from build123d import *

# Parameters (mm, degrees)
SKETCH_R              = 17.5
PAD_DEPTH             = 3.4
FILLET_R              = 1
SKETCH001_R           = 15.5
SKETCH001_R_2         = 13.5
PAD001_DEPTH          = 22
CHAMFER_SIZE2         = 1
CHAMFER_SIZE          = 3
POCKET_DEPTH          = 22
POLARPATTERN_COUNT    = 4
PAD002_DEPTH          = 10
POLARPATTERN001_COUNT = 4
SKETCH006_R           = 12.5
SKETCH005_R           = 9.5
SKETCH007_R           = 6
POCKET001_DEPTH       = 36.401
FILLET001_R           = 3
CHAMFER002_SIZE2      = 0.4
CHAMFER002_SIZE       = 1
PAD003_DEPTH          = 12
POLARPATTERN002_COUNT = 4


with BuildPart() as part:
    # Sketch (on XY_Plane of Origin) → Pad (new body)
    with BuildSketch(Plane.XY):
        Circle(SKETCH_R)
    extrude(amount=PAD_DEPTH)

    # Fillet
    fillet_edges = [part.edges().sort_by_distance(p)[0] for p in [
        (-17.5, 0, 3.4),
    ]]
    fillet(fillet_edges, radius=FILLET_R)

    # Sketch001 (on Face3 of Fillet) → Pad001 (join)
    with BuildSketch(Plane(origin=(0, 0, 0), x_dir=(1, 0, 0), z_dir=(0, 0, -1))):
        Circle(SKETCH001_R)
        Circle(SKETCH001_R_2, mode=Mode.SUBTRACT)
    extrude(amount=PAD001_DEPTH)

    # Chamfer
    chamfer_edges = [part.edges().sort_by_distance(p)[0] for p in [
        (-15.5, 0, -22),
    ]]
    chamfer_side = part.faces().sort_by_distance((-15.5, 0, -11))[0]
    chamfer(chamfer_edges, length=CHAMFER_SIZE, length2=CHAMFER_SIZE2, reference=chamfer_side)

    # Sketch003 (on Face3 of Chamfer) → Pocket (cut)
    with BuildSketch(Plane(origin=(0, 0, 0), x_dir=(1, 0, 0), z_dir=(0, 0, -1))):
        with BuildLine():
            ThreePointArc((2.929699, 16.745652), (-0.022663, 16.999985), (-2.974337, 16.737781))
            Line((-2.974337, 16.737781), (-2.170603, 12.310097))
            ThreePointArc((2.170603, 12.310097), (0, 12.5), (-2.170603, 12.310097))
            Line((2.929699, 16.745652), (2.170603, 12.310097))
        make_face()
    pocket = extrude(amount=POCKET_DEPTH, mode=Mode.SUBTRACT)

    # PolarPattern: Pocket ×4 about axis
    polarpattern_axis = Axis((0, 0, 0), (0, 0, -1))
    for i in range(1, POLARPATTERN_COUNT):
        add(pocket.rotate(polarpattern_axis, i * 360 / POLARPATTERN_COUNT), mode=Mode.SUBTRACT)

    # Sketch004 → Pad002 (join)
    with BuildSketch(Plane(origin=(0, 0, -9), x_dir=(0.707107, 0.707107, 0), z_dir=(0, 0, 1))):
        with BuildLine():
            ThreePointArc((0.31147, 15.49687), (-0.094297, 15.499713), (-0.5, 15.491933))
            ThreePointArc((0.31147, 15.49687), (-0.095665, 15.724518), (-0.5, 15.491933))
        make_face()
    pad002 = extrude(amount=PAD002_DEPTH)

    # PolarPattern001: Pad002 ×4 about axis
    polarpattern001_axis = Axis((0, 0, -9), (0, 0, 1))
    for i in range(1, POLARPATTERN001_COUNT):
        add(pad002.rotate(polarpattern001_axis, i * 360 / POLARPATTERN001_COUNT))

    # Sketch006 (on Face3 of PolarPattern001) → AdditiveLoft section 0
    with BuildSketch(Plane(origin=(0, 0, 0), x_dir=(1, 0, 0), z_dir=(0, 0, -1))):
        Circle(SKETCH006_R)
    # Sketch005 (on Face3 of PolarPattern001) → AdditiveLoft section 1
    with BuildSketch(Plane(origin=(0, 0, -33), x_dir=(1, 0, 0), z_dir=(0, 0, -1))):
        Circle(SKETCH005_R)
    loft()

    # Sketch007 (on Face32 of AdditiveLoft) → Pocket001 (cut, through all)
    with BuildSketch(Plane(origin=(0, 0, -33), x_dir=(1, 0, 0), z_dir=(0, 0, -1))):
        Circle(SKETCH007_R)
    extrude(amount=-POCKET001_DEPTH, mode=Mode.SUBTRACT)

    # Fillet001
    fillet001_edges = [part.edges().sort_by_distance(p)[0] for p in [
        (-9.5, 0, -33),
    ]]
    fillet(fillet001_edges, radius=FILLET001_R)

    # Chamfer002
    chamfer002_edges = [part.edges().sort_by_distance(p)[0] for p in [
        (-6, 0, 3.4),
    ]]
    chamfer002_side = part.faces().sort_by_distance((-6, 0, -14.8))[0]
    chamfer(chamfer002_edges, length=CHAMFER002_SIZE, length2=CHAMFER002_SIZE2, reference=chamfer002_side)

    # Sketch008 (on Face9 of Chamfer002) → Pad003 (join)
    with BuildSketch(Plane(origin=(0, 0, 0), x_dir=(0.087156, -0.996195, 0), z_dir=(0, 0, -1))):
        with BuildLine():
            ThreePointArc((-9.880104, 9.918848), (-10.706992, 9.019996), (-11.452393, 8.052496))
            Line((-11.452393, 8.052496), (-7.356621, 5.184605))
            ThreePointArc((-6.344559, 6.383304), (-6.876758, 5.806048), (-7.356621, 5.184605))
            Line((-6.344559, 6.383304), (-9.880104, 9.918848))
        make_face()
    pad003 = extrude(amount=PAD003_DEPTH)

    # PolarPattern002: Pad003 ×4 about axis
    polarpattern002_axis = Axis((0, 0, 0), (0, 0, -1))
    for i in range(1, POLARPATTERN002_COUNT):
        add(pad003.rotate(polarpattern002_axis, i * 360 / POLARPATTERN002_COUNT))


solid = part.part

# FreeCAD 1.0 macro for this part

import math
import FreeCAD as App
import Part
import Sketcher
from FreeCAD import Vector
Q = App.Units.Quantity


def edges_at(feature, points):
    """Names of the edges that pass closest to the given points."""
    edges = feature.Shape.Edges
    near = lambda p: min(range(len(edges)), key=lambda i: edges[i].distToShape(Part.Vertex(*p))[0])
    return sorted({f"Edge{near(p) + 1}" for p in points})

doc = App.newDocument("Part")
params = doc.addObject("Spreadsheet::Sheet", "Params")
for row, (alias, value) in enumerate([
    ("sketch1_diameter", "35 mm"),
    ("pad1_length", "3.4 mm"),
    ("fillet_radius", "1 mm"),
    ("sketch2_diameter", "31 mm"),
    ("sketch2_diameter2", "27 mm"),
    ("pad2_length", "22 mm"),
    ("chamfer_size", "3 mm"),
    ("chamfer_size2", "1 mm"),
    ("pocket1_length", "22 mm"),
    ("pad3_length", "10 mm"),
    ("sketch5_diameter", "25 mm"),
    ("sketch6_diameter", "19 mm"),
    ("sketch7_diameter", "12 mm"),
    ("fillet2_radius", "3 mm"),
    ("chamfer2_size", "1 mm"),
    ("chamfer2_size2", "0.4 mm"),
    ("pad4_length", "12 mm"),
], start=1):
    params.set(f"A{row}", alias)
    params.set(f"B{row}", "=" + value)
    params.setAlias(f"B{row}", alias)

body = doc.addObject("PartDesign::Body", "Body")

# Sketch on XY plane
sketch1 = body.newObject("Sketcher::SketchObject", "Sketch")
sketch1.AttachmentSupport = (doc.getObject("XY_Plane"), [""])
sketch1.MapMode = "FlatFace"
sketch1.addGeometry(Part.Circle(Vector(0, 0, 0), Vector(0, 0, 1), 17.5), False)
sketch1.addConstraint(Sketcher.Constraint("Coincident", 0, 3, -1, 1))
sketch1.addConstraint(Sketcher.Constraint("Diameter", 0, Q("35 mm")))
sketch1.setExpression("Constraints[1]", "Params.sketch1_diameter")
pad1 = body.newObject("PartDesign::Pad", "Pad")
pad1.Profile = sketch1
pad1.setExpression("Length", "Params.pad1_length")
doc.recompute()

fillet = body.newObject("PartDesign::Fillet", "Fillet")
fillet.Base = (pad1, edges_at(pad1, [(-17.5, 0, 3.4)]))
fillet.setExpression("Radius", "Params.fillet_radius")

# Sketch on XY plane
sketch2 = body.newObject("Sketcher::SketchObject", "Sketch001")
sketch2.AttachmentSupport = (doc.getObject("XY_Plane"), [""])
sketch2.MapMode = "FlatFace"
sketch2.addGeometry(Part.Circle(Vector(0, 0, 0), Vector(0, 0, 1), 15.5), False)
sketch2.addGeometry(Part.Circle(Vector(0, 0, 0), Vector(0, 0, 1), 13.5), False)
sketch2.addConstraint(Sketcher.Constraint("Coincident", 0, 3, -1, 1))
sketch2.addConstraint(Sketcher.Constraint("Coincident", 1, 3, -1, 1))
sketch2.addConstraint(Sketcher.Constraint("Diameter", 0, Q("31 mm")))
sketch2.addConstraint(Sketcher.Constraint("Diameter", 1, Q("27 mm")))
sketch2.setExpression("Constraints[2]", "Params.sketch2_diameter")
sketch2.setExpression("Constraints[3]", "Params.sketch2_diameter2")
pad2 = body.newObject("PartDesign::Pad", "Pad001")
pad2.Profile = sketch2
pad2.setExpression("Length", "Params.pad2_length")
pad2.Reversed = True
doc.recompute()

chamfer = body.newObject("PartDesign::Chamfer", "Chamfer")
chamfer.Base = (pad2, edges_at(pad2, [(-15.5, 0, -22)]))
chamfer.ChamferType = "Two distances"
chamfer.setExpression("Size", "Params.chamfer_size")
chamfer.setExpression("Size2", "Params.chamfer_size2")

# Sketch on XY plane
sketch3 = body.newObject("Sketcher::SketchObject", "Sketch002")
sketch3.AttachmentSupport = (doc.getObject("XY_Plane"), [""])
sketch3.MapMode = "FlatFace"
sketch3.addGeometry(Part.ArcOfCircle(Part.Circle(Vector(0, -0.000016, 0), Vector(0, 0, 1), 16.999984), math.radians(-100.076399), math.radians(-80.076369)), False)
sketch3.addGeometry(Part.LineSegment(Vector(-2.974337, -16.737781, 0), Vector(-2.170603, -12.310097, 0)), False)
sketch3.addGeometry(Part.ArcOfCircle(Part.Circle(Vector(0, 0.000015, 0), Vector(0, 0, 1), 12.500015), math.radians(-99.999992), math.radians(-80.000008)), False)
sketch3.addGeometry(Part.LineSegment(Vector(2.170603, -12.310097, 0), Vector(2.929699, -16.745652, 0)), False)
sketch3.addConstraint(Sketcher.Constraint("Coincident", 0, 1, 1, 1))
sketch3.addConstraint(Sketcher.Constraint("Coincident", 1, 2, 2, 1))
sketch3.addConstraint(Sketcher.Constraint("Coincident", 2, 2, 3, 1))
sketch3.addConstraint(Sketcher.Constraint("Coincident", 3, 2, 0, 2))
sketch3.addConstraint(Sketcher.Constraint("Symmetric", 0, 3, 2, 3, -1, 1))
sketch3.addConstraint(Sketcher.Constraint("Symmetric", 1, 2, 2, 2, -2))
sketch3.addConstraint(Sketcher.Constraint("Equal", 1, 3))
sketch3.addConstraint(Sketcher.Constraint("Radius", 0, Q("16.999984 mm")))
sketch3.addConstraint(Sketcher.Constraint("Radius", 2, Q("12.500015 mm")))
sketch3.addConstraint(Sketcher.Constraint("DistanceX", -1, 1, 3, 2, Q("2.929699 mm")))
sketch3.addConstraint(Sketcher.Constraint("DistanceX", 1, 2, 3, 2, Q("5.100302 mm")))
sketch3.addConstraint(Sketcher.Constraint("Distance", 1, Q("4.500042 mm")))
pocket1 = body.newObject("PartDesign::Pocket", "Pocket")
pocket1.Profile = sketch3
pocket1.setExpression("Length", "Params.pocket1_length")
doc.recompute()

polarpattern = body.newObject("PartDesign::PolarPattern", "PolarPattern")
polarpattern.Originals = [pocket1]
polarpattern.Axis = (doc.getObject("Z_Axis"), [""])
polarpattern.Angle = 360
polarpattern.Occurrences = 4
body.Tip = polarpattern

# Sketch on XY plane
sketch4 = body.newObject("Sketcher::SketchObject", "Sketch003")
sketch4.AttachmentSupport = (doc.getObject("XY_Plane"), [""])
sketch4.MapMode = "FlatFace"
sketch4.AttachmentOffset = App.Placement(Vector(0, 0, -9), App.Rotation())
sketch4.addGeometry(Part.ArcOfCircle(Part.Circle(Vector(-0.000285, 0.000286, 0), Vector(0, 0, 1), 15.499596), math.radians(133.848546), math.radians(136.848623)), False)
sketch4.addGeometry(Part.ArcOfCircle(Part.Circle(Vector(-10.850241, 10.719018, 0), Vector(0, 0, 1), 0.472757), math.radians(76.228273), math.radians(194.468896)), False)
sketch4.addConstraint(Sketcher.Constraint("Coincident", 0, 1, 1, 1))
sketch4.addConstraint(Sketcher.Constraint("Coincident", 1, 2, 0, 2))
sketch4.addConstraint(Sketcher.Constraint("Radius", 0, Q("15.499596 mm")))
sketch4.addConstraint(Sketcher.Constraint("Radius", 1, Q("0.472757 mm")))
sketch4.addConstraint(Sketcher.Constraint("DistanceX", 0, 1, -1, 1, Q("10.737699 mm")))
sketch4.addConstraint(Sketcher.Constraint("DistanceY", 0, 3, 0, 1, Q("11.177898 mm")))
sketch4.addConstraint(Sketcher.Constraint("DistanceX", 1, 3, -1, 1, Q("10.850241 mm")))
sketch4.addConstraint(Sketcher.Constraint("DistanceY", -1, 1, 0, 3, Q("0.000286 mm")))
pad3 = body.newObject("PartDesign::Pad", "Pad002")
pad3.Profile = sketch4
pad3.setExpression("Length", "Params.pad3_length")
doc.recompute()

polarpattern2 = body.newObject("PartDesign::PolarPattern", "PolarPattern001")
polarpattern2.Originals = [pad3]
polarpattern2.Axis = (doc.getObject("Z_Axis"), [""])
polarpattern2.Angle = 360
polarpattern2.Occurrences = 4
body.Tip = polarpattern2

# Sketch on XY plane
sketch5 = body.newObject("Sketcher::SketchObject", "Sketch004")
sketch5.AttachmentSupport = (doc.getObject("XY_Plane"), [""])
sketch5.MapMode = "FlatFace"
sketch5.addGeometry(Part.Circle(Vector(0, 0, 0), Vector(0, 0, 1), 12.5), False)
sketch5.addConstraint(Sketcher.Constraint("Coincident", 0, 3, -1, 1))
sketch5.addConstraint(Sketcher.Constraint("Diameter", 0, Q("25 mm")))
sketch5.setExpression("Constraints[1]", "Params.sketch5_diameter")

# Sketch on XY plane
sketch6 = body.newObject("Sketcher::SketchObject", "Sketch005")
sketch6.AttachmentSupport = (doc.getObject("XY_Plane"), [""])
sketch6.MapMode = "FlatFace"
sketch6.AttachmentOffset = App.Placement(Vector(0, 0, -33), App.Rotation())
sketch6.addGeometry(Part.Circle(Vector(0, 0, 0), Vector(0, 0, 1), 9.5), False)
sketch6.addConstraint(Sketcher.Constraint("Coincident", 0, 3, -1, 1))
sketch6.addConstraint(Sketcher.Constraint("Diameter", 0, Q("19 mm")))
sketch6.setExpression("Constraints[1]", "Params.sketch6_diameter")

additiveloft = body.newObject("PartDesign::AdditiveLoft", "AdditiveLoft")
additiveloft.Profile = sketch5
additiveloft.Sections = [sketch6]

# Sketch on XY plane
sketch7 = body.newObject("Sketcher::SketchObject", "Sketch006")
sketch7.AttachmentSupport = (doc.getObject("XY_Plane"), [""])
sketch7.MapMode = "FlatFace"
sketch7.AttachmentOffset = App.Placement(Vector(0, 0, -33), App.Rotation())
sketch7.addGeometry(Part.Circle(Vector(0, 0, 0), Vector(0, 0, 1), 6), False)
sketch7.addConstraint(Sketcher.Constraint("Coincident", 0, 3, -1, 1))
sketch7.addConstraint(Sketcher.Constraint("Diameter", 0, Q("12 mm")))
sketch7.setExpression("Constraints[1]", "Params.sketch7_diameter")
pocket2 = body.newObject("PartDesign::Pocket", "Pocket001")
pocket2.Profile = sketch7
pocket2.Type = "ThroughAll"
pocket2.Reversed = True
doc.recompute()

fillet2 = body.newObject("PartDesign::Fillet", "Fillet001")
fillet2.Base = (pocket2, edges_at(pocket2, [(-9.5, 0, -33)]))
fillet2.setExpression("Radius", "Params.fillet2_radius")
doc.recompute()

chamfer2 = body.newObject("PartDesign::Chamfer", "Chamfer001")
chamfer2.Base = (fillet2, edges_at(fillet2, [(-6, 0, 3.4)]))
chamfer2.ChamferType = "Two distances"
chamfer2.setExpression("Size", "Params.chamfer2_size")
chamfer2.setExpression("Size2", "Params.chamfer2_size2")

# Sketch on XY plane
sketch8 = body.newObject("Sketcher::SketchObject", "Sketch007")
sketch8.AttachmentSupport = (doc.getObject("XY_Plane"), [""])
sketch8.MapMode = "FlatFace"
sketch8.addGeometry(Part.ArcOfCircle(Part.Circle(Vector(-0.000044, 0.000043, 0), Vector(0, 0, 1), 13.999939), math.radians(130.112107), math.radians(140.112153)), False)
sketch8.addGeometry(Part.LineSegment(Vector(-9.019998, 10.70699, 0), Vector(-5.806049, 6.876757, 0)), False)
sketch8.addGeometry(Part.ArcOfCircle(Part.Circle(Vector(0.000065, -0.000064, 0), Vector(0, 0, 1), 9.000091), math.radians(130.174473), math.radians(140.174382)), False)
sketch8.addGeometry(Part.LineSegment(Vector(-6.91198, 5.764073, 0), Vector(-10.742214, 8.97802, 0)), False)
sketch8.addConstraint(Sketcher.Constraint("Coincident", 0, 1, 1, 1))
sketch8.addConstraint(Sketcher.Constraint("Coincident", 1, 2, 2, 1))
sketch8.addConstraint(Sketcher.Constraint("Coincident", 2, 2, 3, 1))
sketch8.addConstraint(Sketcher.Constraint("Coincident", 3, 2, 0, 2))
sketch8.addConstraint(Sketcher.Constraint("Equal", 1, 3))
sketch8.addConstraint(Sketcher.Constraint("Angle", 1, Q("-49.999981 deg")))
sketch8.addConstraint(Sketcher.Constraint("Angle", 3, Q("140.000005 deg")))
sketch8.addConstraint(Sketcher.Constraint("DistanceX", 0, 1, -1, 1, Q("9.019998 mm")))
sketch8.addConstraint(Sketcher.Constraint("Radius", 0, Q("13.999939 mm")))
sketch8.addConstraint(Sketcher.Constraint("Radius", 2, Q("9.000091 mm")))
sketch8.addConstraint(Sketcher.Constraint("DistanceY", -1, 1, 0, 1, Q("10.70699 mm")))
sketch8.addConstraint(Sketcher.Constraint("DistanceX", 1, 2, -1, 1, Q("5.806049 mm")))
sketch8.addConstraint(Sketcher.Constraint("DistanceX", 2, 2, -1, 1, Q("6.91198 mm")))
sketch8.addConstraint(Sketcher.Constraint("DistanceY", -1, 1, 3, 2, Q("8.97802 mm")))
pad4 = body.newObject("PartDesign::Pad", "Pad003")
pad4.Profile = sketch8
pad4.setExpression("Length", "Params.pad4_length")
pad4.Reversed = True
doc.recompute()

polarpattern3 = body.newObject("PartDesign::PolarPattern", "PolarPattern002")
polarpattern3.Originals = [pad4]
polarpattern3.Axis = (doc.getObject("Z_Axis"), [""])
polarpattern3.Angle = 360
polarpattern3.Occurrences = 4
body.Tip = polarpattern3

doc.recompute()
